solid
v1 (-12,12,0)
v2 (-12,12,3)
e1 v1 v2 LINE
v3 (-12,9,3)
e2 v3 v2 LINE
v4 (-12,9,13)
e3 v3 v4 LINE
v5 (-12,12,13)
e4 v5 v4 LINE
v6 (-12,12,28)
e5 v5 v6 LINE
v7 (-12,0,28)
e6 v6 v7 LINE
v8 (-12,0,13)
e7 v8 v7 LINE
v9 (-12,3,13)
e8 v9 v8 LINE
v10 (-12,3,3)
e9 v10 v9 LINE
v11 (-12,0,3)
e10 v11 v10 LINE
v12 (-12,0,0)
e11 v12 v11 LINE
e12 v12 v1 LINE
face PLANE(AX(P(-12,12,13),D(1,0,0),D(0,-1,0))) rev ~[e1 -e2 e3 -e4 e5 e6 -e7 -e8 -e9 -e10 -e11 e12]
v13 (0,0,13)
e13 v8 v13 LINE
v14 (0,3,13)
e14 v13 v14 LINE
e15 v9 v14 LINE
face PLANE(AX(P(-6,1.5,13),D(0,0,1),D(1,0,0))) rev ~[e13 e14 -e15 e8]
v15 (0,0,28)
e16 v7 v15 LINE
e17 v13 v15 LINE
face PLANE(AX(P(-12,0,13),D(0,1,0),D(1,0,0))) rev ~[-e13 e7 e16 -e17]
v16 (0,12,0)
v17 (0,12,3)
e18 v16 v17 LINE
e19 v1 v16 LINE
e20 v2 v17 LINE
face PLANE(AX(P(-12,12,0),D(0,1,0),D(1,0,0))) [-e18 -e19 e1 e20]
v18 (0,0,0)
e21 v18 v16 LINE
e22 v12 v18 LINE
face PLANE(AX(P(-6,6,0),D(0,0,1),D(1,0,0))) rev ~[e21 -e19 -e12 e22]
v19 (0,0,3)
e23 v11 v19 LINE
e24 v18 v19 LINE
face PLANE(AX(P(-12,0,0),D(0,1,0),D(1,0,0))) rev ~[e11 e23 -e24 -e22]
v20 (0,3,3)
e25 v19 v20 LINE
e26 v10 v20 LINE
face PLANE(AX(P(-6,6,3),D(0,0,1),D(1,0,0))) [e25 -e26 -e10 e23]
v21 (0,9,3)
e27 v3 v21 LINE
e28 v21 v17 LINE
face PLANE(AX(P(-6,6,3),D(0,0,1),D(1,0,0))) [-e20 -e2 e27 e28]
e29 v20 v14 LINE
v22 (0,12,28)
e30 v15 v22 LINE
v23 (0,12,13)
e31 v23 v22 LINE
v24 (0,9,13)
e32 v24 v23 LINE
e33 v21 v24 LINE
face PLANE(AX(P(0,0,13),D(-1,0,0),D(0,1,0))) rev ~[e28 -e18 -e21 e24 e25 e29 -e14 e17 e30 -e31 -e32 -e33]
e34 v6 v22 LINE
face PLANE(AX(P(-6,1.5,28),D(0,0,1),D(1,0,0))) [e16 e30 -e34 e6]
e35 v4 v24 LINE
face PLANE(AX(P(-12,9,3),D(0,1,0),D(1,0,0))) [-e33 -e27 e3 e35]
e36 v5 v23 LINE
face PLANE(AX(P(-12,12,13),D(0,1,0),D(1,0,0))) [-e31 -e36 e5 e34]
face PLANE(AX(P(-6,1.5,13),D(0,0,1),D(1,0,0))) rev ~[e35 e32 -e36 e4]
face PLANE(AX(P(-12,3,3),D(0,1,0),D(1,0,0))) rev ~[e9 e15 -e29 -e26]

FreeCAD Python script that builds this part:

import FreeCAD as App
import Part
import Sketcher
from FreeCAD import Vector


def add_polygon(sketch, points):
    """Adds a closed chain of lines whose ends are joined by coincident constraints."""
    first, n = sketch.GeometryCount, len(points)
    for a, b in zip(points, points[1:] + points[:1]):
        sketch.addGeometry(Part.LineSegment(App.Vector(*a, 0), App.Vector(*b, 0)), False)
    for i in range(n):
        sketch.addConstraint(Sketcher.Constraint("Coincident", first + i, 2, first + (i + 1) % n, 1))

doc = App.newDocument("Part")
body = doc.addObject("PartDesign::Body", "Body")

# Sketch on XY plane
sketch1 = body.newObject("Sketcher::SketchObject", "Sketch")
sketch1.AttachmentSupport = (doc.getObject("XY_Plane"), [""])
sketch1.MapMode = "FlatFace"
add_polygon(sketch1, [(-12, 12), (-12, 0), (0, 0), (0, 12)])  # lines 0-3
sketch1.addConstraint([
    Sketcher.Constraint("Vertical", 0),
    Sketcher.Constraint("Horizontal", 1),
    Sketcher.Constraint("Vertical", 2),
    Sketcher.Constraint("Horizontal", 3),
    Sketcher.Constraint("Coincident", 1, 2, -1, 1),
    Sketcher.Constraint("Equal", 3, 0),
    Sketcher.Constraint("DistanceX", 1, 1, 1, 2, 12.0),
])
pad1 = body.newObject("PartDesign::Pad", "Pad")
pad1.Profile = sketch1
pad1.Length = 3

# Sketch on XY plane
sketch2 = body.newObject("Sketcher::SketchObject", "Sketch001")
sketch2.AttachmentSupport = (doc.getObject("XY_Plane"), [""])
sketch2.MapMode = "FlatFace"
sketch2.AttachmentOffset = App.Placement(Vector(0, 0, 3), App.Rotation())
add_polygon(sketch2, [(-12, 9), (-12, 3), (0, 3), (0, 9)])  # lines 0-3
sketch2.addConstraint([
    Sketcher.Constraint("Vertical", 0),
    Sketcher.Constraint("Horizontal", 1),
    Sketcher.Constraint("Vertical", 2),
    Sketcher.Constraint("Horizontal", 3),
    Sketcher.Constraint("PointOnObject", 1, 2, -2),
    Sketcher.Constraint("DistanceX", 1, 1, 1, 2, 12.0),
    Sketcher.Constraint("DistanceY", 0, 2, 0, 1, 6.0),
    Sketcher.Constraint("DistanceY", -1, 1, 0, 2, 3.0),
])
pad2 = body.newObject("PartDesign::Pad", "Pad001")
pad2.Profile = sketch2
pad2.Length = 10

# Sketch on XY plane
sketch3 = body.newObject("Sketcher::SketchObject", "Sketch002")
sketch3.AttachmentSupport = (doc.getObject("XY_Plane"), [""])
sketch3.MapMode = "FlatFace"
sketch3.AttachmentOffset = App.Placement(Vector(0, 0, 13), App.Rotation())
add_polygon(sketch3, [(-12, 0), (0, 0), (0, 12), (-12, 12)])  # lines 0-3
sketch3.addConstraint([
    Sketcher.Constraint("Horizontal", 0),
    Sketcher.Constraint("Vertical", 1),
    Sketcher.Constraint("Horizontal", 2),
    Sketcher.Constraint("Vertical", 3),
    Sketcher.Constraint("Coincident", 0, 2, -1, 1),
    Sketcher.Constraint("Equal", 2, 1),
    Sketcher.Constraint("DistanceX", 0, 1, 0, 2, 12.0),
])
pad3 = body.newObject("PartDesign::Pad", "Pad002")
pad3.Profile = sketch3
pad3.Length = 15

doc.recompute()
